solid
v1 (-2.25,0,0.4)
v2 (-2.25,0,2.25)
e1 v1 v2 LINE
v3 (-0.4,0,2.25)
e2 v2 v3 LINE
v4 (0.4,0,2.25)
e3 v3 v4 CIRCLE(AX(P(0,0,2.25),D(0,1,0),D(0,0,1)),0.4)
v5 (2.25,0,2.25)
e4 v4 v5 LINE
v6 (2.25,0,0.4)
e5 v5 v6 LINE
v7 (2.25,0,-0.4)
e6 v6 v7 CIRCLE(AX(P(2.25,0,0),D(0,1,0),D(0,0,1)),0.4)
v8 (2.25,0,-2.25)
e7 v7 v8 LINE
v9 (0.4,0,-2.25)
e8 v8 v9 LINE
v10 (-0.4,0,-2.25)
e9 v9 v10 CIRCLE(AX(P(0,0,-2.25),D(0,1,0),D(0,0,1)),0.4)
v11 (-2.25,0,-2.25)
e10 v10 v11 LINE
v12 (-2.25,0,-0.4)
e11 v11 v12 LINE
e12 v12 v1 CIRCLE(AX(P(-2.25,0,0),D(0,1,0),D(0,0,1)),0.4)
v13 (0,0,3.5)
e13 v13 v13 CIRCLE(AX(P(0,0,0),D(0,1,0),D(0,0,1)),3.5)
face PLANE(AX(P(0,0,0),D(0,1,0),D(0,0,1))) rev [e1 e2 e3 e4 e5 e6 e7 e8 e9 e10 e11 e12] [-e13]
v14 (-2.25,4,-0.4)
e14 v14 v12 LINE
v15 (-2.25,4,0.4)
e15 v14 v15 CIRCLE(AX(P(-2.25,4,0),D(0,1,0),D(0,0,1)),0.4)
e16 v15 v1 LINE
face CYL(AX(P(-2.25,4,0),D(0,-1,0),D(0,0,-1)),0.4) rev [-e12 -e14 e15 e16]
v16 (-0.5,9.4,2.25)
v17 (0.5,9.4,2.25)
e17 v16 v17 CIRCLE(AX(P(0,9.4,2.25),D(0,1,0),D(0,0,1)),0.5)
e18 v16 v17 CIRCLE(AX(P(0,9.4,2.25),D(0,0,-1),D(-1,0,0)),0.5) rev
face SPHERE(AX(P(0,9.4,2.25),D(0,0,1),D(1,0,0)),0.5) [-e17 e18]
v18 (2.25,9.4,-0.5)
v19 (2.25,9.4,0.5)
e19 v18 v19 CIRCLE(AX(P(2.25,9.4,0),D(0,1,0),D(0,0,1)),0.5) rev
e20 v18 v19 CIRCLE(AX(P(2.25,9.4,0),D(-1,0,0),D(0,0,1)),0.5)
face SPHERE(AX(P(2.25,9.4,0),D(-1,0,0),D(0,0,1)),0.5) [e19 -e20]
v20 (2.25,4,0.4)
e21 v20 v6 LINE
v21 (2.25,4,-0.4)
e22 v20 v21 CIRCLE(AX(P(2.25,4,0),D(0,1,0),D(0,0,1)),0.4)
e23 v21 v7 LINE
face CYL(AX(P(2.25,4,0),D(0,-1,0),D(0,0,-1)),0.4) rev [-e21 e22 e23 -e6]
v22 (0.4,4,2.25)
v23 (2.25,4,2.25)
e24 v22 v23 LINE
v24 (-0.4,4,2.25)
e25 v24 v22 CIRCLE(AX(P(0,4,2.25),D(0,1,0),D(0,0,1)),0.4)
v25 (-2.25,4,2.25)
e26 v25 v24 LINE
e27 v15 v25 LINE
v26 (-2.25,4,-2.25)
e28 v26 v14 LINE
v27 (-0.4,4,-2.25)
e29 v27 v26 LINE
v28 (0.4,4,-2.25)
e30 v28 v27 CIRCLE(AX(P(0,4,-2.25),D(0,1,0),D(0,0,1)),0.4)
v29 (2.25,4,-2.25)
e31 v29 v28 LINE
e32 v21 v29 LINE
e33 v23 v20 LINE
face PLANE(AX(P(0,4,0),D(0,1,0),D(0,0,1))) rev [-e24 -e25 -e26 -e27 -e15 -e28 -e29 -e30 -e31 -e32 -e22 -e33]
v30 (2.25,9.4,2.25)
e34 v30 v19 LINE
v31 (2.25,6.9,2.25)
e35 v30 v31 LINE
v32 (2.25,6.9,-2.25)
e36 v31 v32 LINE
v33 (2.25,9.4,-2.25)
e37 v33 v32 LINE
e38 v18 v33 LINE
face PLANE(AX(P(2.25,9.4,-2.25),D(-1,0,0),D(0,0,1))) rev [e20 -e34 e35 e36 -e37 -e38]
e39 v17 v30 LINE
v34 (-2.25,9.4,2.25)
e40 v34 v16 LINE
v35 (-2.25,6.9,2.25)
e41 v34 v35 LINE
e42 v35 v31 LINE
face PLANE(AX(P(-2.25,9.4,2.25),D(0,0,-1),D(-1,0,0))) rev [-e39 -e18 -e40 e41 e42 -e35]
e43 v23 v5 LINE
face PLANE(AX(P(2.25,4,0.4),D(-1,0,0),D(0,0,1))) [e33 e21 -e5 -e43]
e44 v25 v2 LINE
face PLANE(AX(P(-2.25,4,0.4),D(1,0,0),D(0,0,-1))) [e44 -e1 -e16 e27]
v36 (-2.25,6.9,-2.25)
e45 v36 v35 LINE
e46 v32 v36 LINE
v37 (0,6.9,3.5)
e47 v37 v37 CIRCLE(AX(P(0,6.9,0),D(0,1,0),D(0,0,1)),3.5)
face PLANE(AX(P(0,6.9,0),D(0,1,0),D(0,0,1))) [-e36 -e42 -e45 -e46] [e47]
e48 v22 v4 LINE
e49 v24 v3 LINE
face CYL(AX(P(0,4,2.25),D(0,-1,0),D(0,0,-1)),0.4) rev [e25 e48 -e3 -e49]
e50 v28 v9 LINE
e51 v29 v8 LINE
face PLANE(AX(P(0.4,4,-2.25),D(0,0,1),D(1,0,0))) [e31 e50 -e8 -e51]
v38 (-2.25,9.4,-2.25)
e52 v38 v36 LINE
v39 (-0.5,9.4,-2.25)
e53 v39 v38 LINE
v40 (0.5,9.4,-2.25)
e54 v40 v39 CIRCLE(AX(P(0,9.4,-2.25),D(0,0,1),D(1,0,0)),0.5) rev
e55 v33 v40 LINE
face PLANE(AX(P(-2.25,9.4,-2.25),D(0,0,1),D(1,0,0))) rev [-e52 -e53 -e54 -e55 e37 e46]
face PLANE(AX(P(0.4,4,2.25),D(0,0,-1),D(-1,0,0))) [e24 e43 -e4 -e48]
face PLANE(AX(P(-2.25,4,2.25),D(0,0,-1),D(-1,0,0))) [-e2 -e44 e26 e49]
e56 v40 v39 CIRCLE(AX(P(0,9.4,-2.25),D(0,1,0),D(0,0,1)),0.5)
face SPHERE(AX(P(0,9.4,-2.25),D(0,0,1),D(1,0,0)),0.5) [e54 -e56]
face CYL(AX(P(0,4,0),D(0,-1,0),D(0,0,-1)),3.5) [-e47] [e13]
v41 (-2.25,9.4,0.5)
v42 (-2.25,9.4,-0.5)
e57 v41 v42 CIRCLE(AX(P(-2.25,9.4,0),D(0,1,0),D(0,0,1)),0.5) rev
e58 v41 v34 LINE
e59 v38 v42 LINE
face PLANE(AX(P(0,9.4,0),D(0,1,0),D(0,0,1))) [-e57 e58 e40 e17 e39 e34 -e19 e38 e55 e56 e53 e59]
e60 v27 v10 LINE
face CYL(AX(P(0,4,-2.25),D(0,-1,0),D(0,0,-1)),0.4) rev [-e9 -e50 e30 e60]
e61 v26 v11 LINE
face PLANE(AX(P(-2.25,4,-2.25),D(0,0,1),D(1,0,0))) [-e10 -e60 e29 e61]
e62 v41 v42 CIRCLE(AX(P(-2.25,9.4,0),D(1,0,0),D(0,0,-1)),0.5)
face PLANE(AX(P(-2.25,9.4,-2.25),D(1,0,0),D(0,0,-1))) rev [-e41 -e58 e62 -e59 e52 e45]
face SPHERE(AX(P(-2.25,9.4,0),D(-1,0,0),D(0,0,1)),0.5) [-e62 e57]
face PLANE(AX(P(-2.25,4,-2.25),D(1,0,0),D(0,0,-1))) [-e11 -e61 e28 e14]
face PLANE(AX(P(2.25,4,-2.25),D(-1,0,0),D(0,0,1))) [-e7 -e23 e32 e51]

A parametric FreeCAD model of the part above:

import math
import FreeCAD as App
import Part
import Sketcher
from FreeCAD import Vector

doc = App.newDocument("Part")
body = doc.addObject("PartDesign::Body", "Body")

sketch1 = body.newObject("Sketcher::SketchObject", "Sketch")
sketch1.AttachmentSupport = (doc.getObject("XZ_Plane"), [""])
sketch1.MapMode = "FlatFace"
sketch1.addGeometry(Part.Circle(Vector(0, 0, 0), Vector(0, 0, 1), 3.5), False)
sketch1.addGeometry(Part.LineSegment(Vector(-2.25, -0.4, 0), Vector(-2.25, -2.25, 0)), False)
sketch1.addGeometry(Part.LineSegment(Vector(-2.25, -2.25, 0), Vector(-0.4, -2.25, 0)), False)
sketch1.addGeometry(Part.ArcOfCircle(Part.Circle(Vector(0, -2.25, 0), Vector(0, 0, 1), 0.4), math.radians(180), math.radians(360)), False)
sketch1.addGeometry(Part.LineSegment(Vector(0.4, -2.25, 0), Vector(2.25, -2.25, 0)), False)
sketch1.addGeometry(Part.LineSegment(Vector(2.25, -2.25, 0), Vector(2.25, -0.4, 0)), False)
sketch1.addGeometry(Part.ArcOfCircle(Part.Circle(Vector(2.25, 0, 0), Vector(0, 0, 1), 0.4), math.radians(-90), math.radians(90)), False)
sketch1.addGeometry(Part.LineSegment(Vector(2.25, 0.4, 0), Vector(2.25, 2.25, 0)), False)
sketch1.addGeometry(Part.LineSegment(Vector(2.25, 2.25, 0), Vector(0.4, 2.25, 0)), False)
sketch1.addGeometry(Part.ArcOfCircle(Part.Circle(Vector(0, 2.25, 0), Vector(0, 0, 1), 0.4), math.radians(0), math.radians(180)), False)
sketch1.addGeometry(Part.LineSegment(Vector(-0.4, 2.25, 0), Vector(-2.25, 2.25, 0)), False)
sketch1.addGeometry(Part.LineSegment(Vector(-2.25, 2.25, 0), Vector(-2.25, 0.4, 0)), False)
sketch1.addGeometry(Part.ArcOfCircle(Part.Circle(Vector(-2.25, 0, 0), Vector(0, 0, 1), 0.4), math.radians(90), math.radians(270)), False)
sketch1.addConstraint(Sketcher.Constraint("Coincident", 1, 2, 2, 1))
sketch1.addConstraint(Sketcher.Constraint("Coincident", 2, 2, 3, 1))
sketch1.addConstraint(Sketcher.Constraint("Coincident", 3, 2, 4, 1))
sketch1.addConstraint(Sketcher.Constraint("Coincident", 4, 2, 5, 1))
sketch1.addConstraint(Sketcher.Constraint("Coincident", 5, 2, 6, 1))
sketch1.addConstraint(Sketcher.Constraint("Coincident", 6, 2, 7, 1))
sketch1.addConstraint(Sketcher.Constraint("Coincident", 7, 2, 8, 1))
sketch1.addConstraint(Sketcher.Constraint("Coincident", 8, 2, 9, 1))
sketch1.addConstraint(Sketcher.Constraint("Coincident", 9, 2, 10, 1))
sketch1.addConstraint(Sketcher.Constraint("Coincident", 10, 2, 11, 1))
sketch1.addConstraint(Sketcher.Constraint("Coincident", 11, 2, 12, 1))
sketch1.addConstraint(Sketcher.Constraint("Coincident", 12, 2, 1, 1))
sketch1.addConstraint(Sketcher.Constraint("Vertical", 1))
sketch1.addConstraint(Sketcher.Constraint("Horizontal", 2))
sketch1.addConstraint(Sketcher.Constraint("Horizontal", 4))
sketch1.addConstraint(Sketcher.Constraint("Vertical", 5))
sketch1.addConstraint(Sketcher.Constraint("Vertical", 7))
sketch1.addConstraint(Sketcher.Constraint("Horizontal", 8))
sketch1.addConstraint(Sketcher.Constraint("Horizontal", 10))
sketch1.addConstraint(Sketcher.Constraint("Vertical", 11))
sketch1.addConstraint(Sketcher.Constraint("Coincident", 0, 3, -1, 1))
sketch1.addConstraint(Sketcher.Constraint("Equal", 3, 6))
sketch1.addConstraint(Sketcher.Constraint("Equal", 6, 9))
sketch1.addConstraint(Sketcher.Constraint("Equal", 9, 12))
sketch1.addConstraint(Sketcher.Constraint("Symmetric", 3, 3, 9, 3, -1, 1))
sketch1.addConstraint(Sketcher.Constraint("Symmetric", 6, 3, 12, 3, -1, 1))
sketch1.addConstraint(Sketcher.Constraint("Symmetric", 1, 2, 7, 2, -1, 1))
sketch1.addConstraint(Sketcher.Constraint("Symmetric", 4, 2, 10, 2, -1, 1))
sketch1.addConstraint(Sketcher.Constraint("Symmetric", 2, 2, 3, 2, -2))
sketch1.addConstraint(Sketcher.Constraint("Symmetric", 6, 2, 11, 2, -2))
sketch1.addConstraint(Sketcher.Constraint("Horizontal", 3, 3, 1, 2))
sketch1.addConstraint(Sketcher.Constraint("Vertical", 12, 3, 1, 2))
sketch1.addConstraint(Sketcher.Constraint("Equal", 10, 1))
sketch1.addConstraint(Sketcher.Constraint("Diameter", 0, 7.0))
sketch1.addConstraint(Sketcher.Constraint("Radius", 3, 0.4))
sketch1.addConstraint(Sketcher.Constraint("DistanceX", 2, 1, 2, 2, 1.85))
pad1 = body.newObject("PartDesign::Pad", "Pad")
pad1.Profile = sketch1
pad1.Length = 4
pad1.Reversed = True

sketch2 = body.newObject("Sketcher::SketchObject", "Sketch001")
sketch2.AttachmentSupport = (doc.getObject("XZ_Plane"), [""])
sketch2.MapMode = "FlatFace"
sketch2.AttachmentOffset = App.Placement(Vector(0, 0, -4), App.Rotation())
sketch2.addGeometry(Part.Circle(Vector(0, 0, 0), Vector(0, 0, 1), 3.5), False)
sketch2.addConstraint(Sketcher.Constraint("Coincident", 0, 3, -1, 1))
sketch2.addConstraint(Sketcher.Constraint("Diameter", 0, 7.0))
pad2 = body.newObject("PartDesign::Pad", "Pad001")
pad2.Profile = sketch2
pad2.Length = 2.9
pad2.Reversed = True

sketch3 = body.newObject("Sketcher::SketchObject", "Sketch002")
sketch3.AttachmentSupport = (doc.getObject("XZ_Plane"), [""])
sketch3.MapMode = "FlatFace"
sketch3.AttachmentOffset = App.Placement(Vector(0, 0, -6.9), App.Rotation())
sketch3.addGeometry(Part.LineSegment(Vector(-2.25, -2.25, 0), Vector(-2.25, 2.25, 0)), False)
sketch3.addGeometry(Part.LineSegment(Vector(-2.25, 2.25, 0), Vector(2.25, 2.25, 0)), False)
sketch3.addGeometry(Part.LineSegment(Vector(2.25, 2.25, 0), Vector(2.25, -2.25, 0)), False)
sketch3.addGeometry(Part.LineSegment(Vector(2.25, -2.25, 0), Vector(-2.25, -2.25, 0)), False)
sketch3.addConstraint(Sketcher.Constraint("Coincident", 0, 2, 1, 1))
sketch3.addConstraint(Sketcher.Constraint("Coincident", 1, 2, 2, 1))
sketch3.addConstraint(Sketcher.Constraint("Coincident", 2, 2, 3, 1))
sketch3.addConstraint(Sketcher.Constraint("Coincident", 3, 2, 0, 1))
sketch3.addConstraint(Sketcher.Constraint("Vertical", 0))
sketch3.addConstraint(Sketcher.Constraint("Horizontal", 1))
sketch3.addConstraint(Sketcher.Constraint("Vertical", 2))
sketch3.addConstraint(Sketcher.Constraint("Horizontal", 3))
sketch3.addConstraint(Sketcher.Constraint("Symmetric", 0, 2, 2, 2, -1, 1))
sketch3.addConstraint(Sketcher.Constraint("Equal", 3, 0))
sketch3.addConstraint(Sketcher.Constraint("DistanceX", 1, 1, 1, 2, 4.5))
pad3 = body.newObject("PartDesign::Pad", "Pad002")
pad3.Profile = sketch3
pad3.Length = 2.5
pad3.Reversed = True

sketch4 = body.newObject("Sketcher::SketchObject", "Sketch003")
sketch4.AttachmentSupport = (doc.getObject("XZ_Plane"), [""])
sketch4.MapMode = "FlatFace"
sketch4.AttachmentOffset = App.Placement(Vector(0, 0, -9.4), App.Rotation())
sketch4.addGeometry(Part.LineSegment(Vector(-1.75, 0, 0), Vector(-2.75, 0, 0)), False)
sketch4.addGeometry(Part.ArcOfCircle(Part.Circle(Vector(-2.25, 0, 0), Vector(0, 0, 1), 0.5), math.radians(0), math.radians(180)), False)
sketch4.addGeometry(Part.LineSegment(Vector(2.75, 0, 0), Vector(1.75, 0, 0)), False)
sketch4.addGeometry(Part.ArcOfCircle(Part.Circle(Vector(2.25, 0, 0), Vector(0, 0, 1), 0.5), math.radians(0), math.radians(180)), False)
sketch4.addConstraint(Sketcher.Constraint("Coincident", 0, 1, 1, 1))
sketch4.addConstraint(Sketcher.Constraint("Coincident", 1, 2, 0, 2))
sketch4.addConstraint(Sketcher.Constraint("Coincident", 2, 1, 3, 1))
sketch4.addConstraint(Sketcher.Constraint("Coincident", 3, 2, 2, 2))
sketch4.addConstraint(Sketcher.Constraint("Horizontal", 0))
sketch4.addConstraint(Sketcher.Constraint("Horizontal", 2))
sketch4.addConstraint(Sketcher.Constraint("Equal", 1, 3))
sketch4.addConstraint(Sketcher.Constraint("Symmetric", 1, 3, 3, 3, -1, 1))
sketch4.addConstraint(Sketcher.Constraint("PointOnObject", 1, 3, -1))
sketch4.addConstraint(Sketcher.Constraint("PointOnObject", 0, 1, -1))
sketch4.addConstraint(Sketcher.Constraint("PointOnObject", 2, 1, -1))
sketch4.addConstraint(Sketcher.Constraint("Radius", 1, 0.5))
sketch4.addConstraint(Sketcher.Constraint("DistanceX", 0, 1, 3, 3, 4.0))
revolution = body.newObject("PartDesign::Revolution", "Revolution")
revolution.Profile = sketch4
revolution.ReferenceAxis = (sketch4, ["H_Axis"])
revolution.Angle = 360

sketch5 = body.newObject("Sketcher::SketchObject", "Sketch004")
sketch5.AttachmentSupport = (doc.getObject("XZ_Plane"), [""])
sketch5.MapMode = "FlatFace"
sketch5.AttachmentOffset = App.Placement(Vector(0, 0, -9.4), App.Rotation())
sketch5.addGeometry(Part.LineSegment(Vector(0, 2.75, 0), Vector(0, 1.75, 0)), False)
sketch5.addGeometry(Part.ArcOfCircle(Part.Circle(Vector(0, 2.25, 0), Vector(0, 0, 1), 0.5), math.radians(90), math.radians(270)), False)
sketch5.addGeometry(Part.LineSegment(Vector(0, -1.75, 0), Vector(0, -2.75, 0)), False)
sketch5.addGeometry(Part.ArcOfCircle(Part.Circle(Vector(0, -2.25, 0), Vector(0, 0, 1), 0.5), math.radians(90), math.radians(270)), False)
sketch5.addConstraint(Sketcher.Constraint("Coincident", 0, 1, 1, 1))
sketch5.addConstraint(Sketcher.Constraint("Coincident", 1, 2, 0, 2))
sketch5.addConstraint(Sketcher.Constraint("Coincident", 2, 1, 3, 1))
sketch5.addConstraint(Sketcher.Constraint("Coincident", 3, 2, 2, 2))
sketch5.addConstraint(Sketcher.Constraint("Vertical", 0))
sketch5.addConstraint(Sketcher.Constraint("Vertical", 2))
sketch5.addConstraint(Sketcher.Constraint("Equal", 1, 3))
sketch5.addConstraint(Sketcher.Constraint("Symmetric", 1, 3, 3, 3, -1, 1))
sketch5.addConstraint(Sketcher.Constraint("PointOnObject", 1, 3, -2))
sketch5.addConstraint(Sketcher.Constraint("PointOnObject", 0, 1, -2))
sketch5.addConstraint(Sketcher.Constraint("PointOnObject", 2, 1, -2))
sketch5.addConstraint(Sketcher.Constraint("Radius", 1, 0.5))
sketch5.addConstraint(Sketcher.Constraint("DistanceY", 3, 3, 0, 1, 5.0))
revolution2 = body.newObject("PartDesign::Revolution", "Revolution001")
revolution2.Profile = sketch5
revolution2.ReferenceAxis = (sketch5, ["V_Axis"])
revolution2.Angle = 360

sketch6 = body.newObject("Sketcher::SketchObject", "Sketch005")
sketch6.AttachmentSupport = (doc.getObject("XZ_Plane"), [""])
sketch6.MapMode = "FlatFace"
sketch6.AttachmentOffset = App.Placement(Vector(0, 0, -9.4), App.Rotation())
sketch6.addGeometry(Part.Circle(Vector(0, 0, 0), Vector(0, 0, 1), 3.5), False)
sketch6.addConstraint(Sketcher.Constraint("Coincident", 0, 3, -1, 1))
sketch6.addConstraint(Sketcher.Constraint("Diameter", 0, 7.0))
pocket1 = body.newObject("PartDesign::Pocket", "Pocket")
pocket1.Profile = sketch6
pocket1.Length = 10

doc.recompute()
